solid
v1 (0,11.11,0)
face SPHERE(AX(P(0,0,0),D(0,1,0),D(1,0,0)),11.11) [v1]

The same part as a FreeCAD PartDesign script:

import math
import FreeCAD as App
import Part
import Sketcher
Q = App.Units.Quantity

doc = App.newDocument("Part")
body = doc.addObject("PartDesign::Body", "Body")

# Sketch on XY plane
sketch1 = body.newObject("Sketcher::SketchObject", "Sketch")
sketch1.AttachmentSupport = (doc.getObject("XY_Plane"), [""])
sketch1.MapMode = "FlatFace"
sketch1.addGeometry([
    Part.LineSegment(App.Vector(0, -11, 0), App.Vector(0, 11, 0)),
    Part.ArcOfCircle(Part.Circle(App.Vector(0, 0, 0), App.Vector(0, 0, 1), 11), math.radians(90), math.radians(270)),
], False)
sketch1.addConstraint([
    Sketcher.Constraint("Coincident", 0, 1, 1, 2),
    Sketcher.Constraint("Coincident", 1, 1, 0, 2),
    Sketcher.Constraint("Vertical", 0),
    Sketcher.Constraint("Coincident", 1, 3, -1, 1),
    Sketcher.Constraint("PointOnObject", 0, 1, -2),
    Sketcher.Constraint("Radius", 1, Q("11.11 mm")),
])
revolution = body.newObject("PartDesign::Revolution", "Revolution")
revolution.Profile = sketch1
revolution.ReferenceAxis = (sketch1, ["V_Axis"])
revolution.Angle = 360

doc.recompute()
